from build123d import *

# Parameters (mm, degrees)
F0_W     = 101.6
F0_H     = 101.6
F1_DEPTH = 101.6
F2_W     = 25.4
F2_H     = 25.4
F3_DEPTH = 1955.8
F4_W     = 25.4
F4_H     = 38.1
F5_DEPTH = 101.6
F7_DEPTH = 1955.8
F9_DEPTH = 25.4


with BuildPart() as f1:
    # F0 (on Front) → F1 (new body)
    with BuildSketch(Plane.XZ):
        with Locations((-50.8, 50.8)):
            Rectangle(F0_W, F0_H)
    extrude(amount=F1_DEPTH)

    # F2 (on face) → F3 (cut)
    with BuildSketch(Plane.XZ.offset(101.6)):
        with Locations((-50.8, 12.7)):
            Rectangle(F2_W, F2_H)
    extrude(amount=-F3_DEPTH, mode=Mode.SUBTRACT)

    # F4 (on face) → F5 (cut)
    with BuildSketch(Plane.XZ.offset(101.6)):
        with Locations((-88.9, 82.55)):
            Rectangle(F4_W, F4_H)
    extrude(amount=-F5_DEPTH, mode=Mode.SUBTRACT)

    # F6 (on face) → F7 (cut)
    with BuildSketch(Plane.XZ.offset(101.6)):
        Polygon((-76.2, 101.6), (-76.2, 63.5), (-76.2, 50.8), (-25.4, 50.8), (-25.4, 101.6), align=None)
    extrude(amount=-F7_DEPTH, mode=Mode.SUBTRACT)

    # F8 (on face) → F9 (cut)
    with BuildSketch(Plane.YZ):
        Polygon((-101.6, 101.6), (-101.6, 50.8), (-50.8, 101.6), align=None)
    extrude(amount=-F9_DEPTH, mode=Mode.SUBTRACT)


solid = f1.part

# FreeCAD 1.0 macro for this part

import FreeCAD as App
import Part
import Sketcher

V = App.Vector
Q = App.Units.Quantity

doc = App.newDocument("Part")
params = doc.addObject("Spreadsheet::Sheet", "Params")
for row, (alias, value) in enumerate([
    ("sketch1_width", "4 in"),
    ("pad1_length", "4 in"),
    ("sketch2_width", "1 in"),
    ("pocket1_length", "77 in"),
    ("sketch3_width", "1 in"),
    ("sketch3_height", "1.5 in"),
    ("pocket2_length", "4 in"),
    ("sketch4_width", "2 in"),
    ("pocket3_length", "77 in"),
    ("sketch5_width", "2 in"),
    ("pocket4_length", "1 in"),
], start=1):
    params.set(f"A{row}", alias)
    params.set(f"B{row}", "=" + value)
    params.setAlias(f"B{row}", alias)

body = doc.addObject("PartDesign::Body", "Body")

sketch1 = body.newObject("Sketcher::SketchObject", "Sketch")
sketch1.AttachmentSupport = (doc.getObject("XZ_Plane"), [""])
sketch1.MapMode = "FlatFace"
sketch1.addGeometry([
    Part.LineSegment(V(-101.6, 101.6, 0), V(-101.6, 0, 0)),
    Part.LineSegment(V(-101.6, 0, 0), V(0, 0, 0)),
    Part.LineSegment(V(0, 0, 0), V(0, 101.6, 0)),
    Part.LineSegment(V(0, 101.6, 0), V(-101.6, 101.6, 0)),
], False)
sketch1.addConstraint([
    Sketcher.Constraint("Coincident", 0, 2, 1, 1),
    Sketcher.Constraint("Coincident", 1, 2, 2, 1),
    Sketcher.Constraint("Coincident", 2, 2, 3, 1),
    Sketcher.Constraint("Coincident", 3, 2, 0, 1),
    Sketcher.Constraint("Vertical", 0),
    Sketcher.Constraint("Horizontal", 1),
    Sketcher.Constraint("Vertical", 2),
    Sketcher.Constraint("Horizontal", 3),
    Sketcher.Constraint("Coincident", 1, 2, -1, 1),
    Sketcher.Constraint("Equal", 3, 0),
    Sketcher.Constraint("DistanceX", 1, 1, 1, 2, Q("4 in")),
])
sketch1.setExpression("Constraints[10]", "Params.sketch1_width")
pad1 = body.newObject("PartDesign::Pad", "Pad")
pad1.Profile = sketch1
pad1.setExpression("Length", "Params.pad1_length")

sketch2 = body.newObject("Sketcher::SketchObject", "Sketch001")
sketch2.AttachmentSupport = (doc.getObject("XZ_Plane"), [""])
sketch2.MapMode = "FlatFace"
sketch2.AttachmentOffset = App.Placement(V(0, 0, 4 * 25.4), App.Rotation())
sketch2.addGeometry([
    Part.LineSegment(V(-63.5, 25.4, 0), V(-63.5, 0, 0)),
    Part.LineSegment(V(-63.5, 0, 0), V(-38.1, 0, 0)),
    Part.LineSegment(V(-38.1, 0, 0), V(-38.1, 25.4, 0)),
    Part.LineSegment(V(-38.1, 25.4, 0), V(-63.5, 25.4, 0)),
], False)
sketch2.addConstraint([
    Sketcher.Constraint("Coincident", 0, 2, 1, 1),
    Sketcher.Constraint("Coincident", 1, 2, 2, 1),
    Sketcher.Constraint("Coincident", 2, 2, 3, 1),
    Sketcher.Constraint("Coincident", 3, 2, 0, 1),
    Sketcher.Constraint("Vertical", 0),
    Sketcher.Constraint("Horizontal", 1),
    Sketcher.Constraint("Vertical", 2),
    Sketcher.Constraint("Horizontal", 3),
    Sketcher.Constraint("PointOnObject", 0, 2, -1),
    Sketcher.Constraint("Equal", 3, 0),
    Sketcher.Constraint("DistanceX", 1, 1, 1, 2, Q("1 in")),
    Sketcher.Constraint("DistanceX", 0, 2, -1, 1, Q("2.5 in")),
])
sketch2.setExpression("Constraints[10]", "Params.sketch2_width")
pocket1 = body.newObject("PartDesign::Pocket", "Pocket")
pocket1.Profile = sketch2
pocket1.setExpression("Length", "Params.pocket1_length")

sketch3 = body.newObject("Sketcher::SketchObject", "Sketch002")
sketch3.AttachmentSupport = (doc.getObject("XZ_Plane"), [""])
sketch3.MapMode = "FlatFace"
sketch3.AttachmentOffset = App.Placement(V(0, 0, 4 * 25.4), App.Rotation())
sketch3.addGeometry([
    Part.LineSegment(V(-101.6, 101.6, 0), V(-101.6, 63.5, 0)),
    Part.LineSegment(V(-101.6, 63.5, 0), V(-76.2, 63.5, 0)),
    Part.LineSegment(V(-76.2, 63.5, 0), V(-76.2, 101.6, 0)),
    Part.LineSegment(V(-76.2, 101.6, 0), V(-101.6, 101.6, 0)),
], False)
sketch3.addConstraint([
    Sketcher.Constraint("Coincident", 0, 2, 1, 1),
    Sketcher.Constraint("Coincident", 1, 2, 2, 1),
    Sketcher.Constraint("Coincident", 2, 2, 3, 1),
    Sketcher.Constraint("Coincident", 3, 2, 0, 1),
    Sketcher.Constraint("Vertical", 0),
    Sketcher.Constraint("Horizontal", 1),
    Sketcher.Constraint("Vertical", 2),
    Sketcher.Constraint("Horizontal", 3),
    Sketcher.Constraint("DistanceX", 1, 1, 1, 2, Q("1 in")),
    Sketcher.Constraint("DistanceY", 0, 2, 0, 1, Q("1.5 in")),
    Sketcher.Constraint("DistanceX", 0, 2, -1, 1, Q("4 in")),
    Sketcher.Constraint("DistanceY", -1, 1, 2, 2, Q("4 in")),
])
sketch3.setExpression("Constraints[8]", "Params.sketch3_width")
sketch3.setExpression("Constraints[9]", "Params.sketch3_height")
pocket2 = body.newObject("PartDesign::Pocket", "Pocket001")
pocket2.Profile = sketch3
pocket2.setExpression("Length", "Params.pocket2_length")

sketch4 = body.newObject("Sketcher::SketchObject", "Sketch003")
sketch4.AttachmentSupport = (doc.getObject("XZ_Plane"), [""])
sketch4.MapMode = "FlatFace"
sketch4.AttachmentOffset = App.Placement(V(0, 0, 4 * 25.4), App.Rotation())
sketch4.addGeometry([
    Part.LineSegment(V(-76.2, 101.6, 0), V(-76.2, 50.8, 0)),
    Part.LineSegment(V(-76.2, 50.8, 0), V(-25.4, 50.8, 0)),
    Part.LineSegment(V(-25.4, 50.8, 0), V(-25.4, 101.6, 0)),
    Part.LineSegment(V(-25.4, 101.6, 0), V(-76.2, 101.6, 0)),
], False)
sketch4.addConstraint([
    Sketcher.Constraint("Coincident", 0, 2, 1, 1),
    Sketcher.Constraint("Coincident", 1, 2, 2, 1),
    Sketcher.Constraint("Coincident", 2, 2, 3, 1),
    Sketcher.Constraint("Coincident", 3, 2, 0, 1),
    Sketcher.Constraint("Vertical", 0),
    Sketcher.Constraint("Horizontal", 1),
    Sketcher.Constraint("Vertical", 2),
    Sketcher.Constraint("Horizontal", 3),
    Sketcher.Constraint("Equal", 3, 0),
    Sketcher.Constraint("DistanceX", 1, 1, 1, 2, Q("2 in")),
    Sketcher.Constraint("DistanceX", 0, 2, -1, 1, Q("3 in")),
    Sketcher.Constraint("DistanceY", -1, 1, 0, 2, Q("2 in")),
])
sketch4.setExpression("Constraints[9]", "Params.sketch4_width")
pocket3 = body.newObject("PartDesign::Pocket", "Pocket002")
pocket3.Profile = sketch4
pocket3.setExpression("Length", "Params.pocket3_length")

sketch5 = body.newObject("Sketcher::SketchObject", "Sketch004")
sketch5.AttachmentSupport = (doc.getObject("YZ_Plane"), [""])
sketch5.MapMode = "FlatFace"
sketch5.addGeometry([
    Part.LineSegment(V(-101.6, 101.6, 0), V(-101.6, 50.8, 0)),
    Part.LineSegment(V(-101.6, 50.8, 0), V(-50.8, 101.6, 0)),
    Part.LineSegment(V(-50.8, 101.6, 0), V(-101.6, 101.6, 0)),
], False)
sketch5.addConstraint([
    Sketcher.Constraint("Coincident", 0, 2, 1, 1),
    Sketcher.Constraint("Coincident", 1, 2, 2, 1),
    Sketcher.Constraint("Coincident", 2, 2, 0, 1),
    Sketcher.Constraint("Vertical", 0),
    Sketcher.Constraint("Horizontal", 2),
    Sketcher.Constraint("Equal", 2, 0),
    Sketcher.Constraint("DistanceX", 2, 2, 2, 1, Q("2 in")),
    Sketcher.Constraint("DistanceX", 0, 2, -1, 1, Q("4 in")),
    Sketcher.Constraint("DistanceY", -1, 1, 0, 2, Q("2 in")),
])
sketch5.setExpression("Constraints[6]", "Params.sketch5_width")
pocket4 = body.newObject("PartDesign::Pocket", "Pocket003")
pocket4.Profile = sketch5
pocket4.setExpression("Length", "Params.pocket4_length")

doc.recompute()
